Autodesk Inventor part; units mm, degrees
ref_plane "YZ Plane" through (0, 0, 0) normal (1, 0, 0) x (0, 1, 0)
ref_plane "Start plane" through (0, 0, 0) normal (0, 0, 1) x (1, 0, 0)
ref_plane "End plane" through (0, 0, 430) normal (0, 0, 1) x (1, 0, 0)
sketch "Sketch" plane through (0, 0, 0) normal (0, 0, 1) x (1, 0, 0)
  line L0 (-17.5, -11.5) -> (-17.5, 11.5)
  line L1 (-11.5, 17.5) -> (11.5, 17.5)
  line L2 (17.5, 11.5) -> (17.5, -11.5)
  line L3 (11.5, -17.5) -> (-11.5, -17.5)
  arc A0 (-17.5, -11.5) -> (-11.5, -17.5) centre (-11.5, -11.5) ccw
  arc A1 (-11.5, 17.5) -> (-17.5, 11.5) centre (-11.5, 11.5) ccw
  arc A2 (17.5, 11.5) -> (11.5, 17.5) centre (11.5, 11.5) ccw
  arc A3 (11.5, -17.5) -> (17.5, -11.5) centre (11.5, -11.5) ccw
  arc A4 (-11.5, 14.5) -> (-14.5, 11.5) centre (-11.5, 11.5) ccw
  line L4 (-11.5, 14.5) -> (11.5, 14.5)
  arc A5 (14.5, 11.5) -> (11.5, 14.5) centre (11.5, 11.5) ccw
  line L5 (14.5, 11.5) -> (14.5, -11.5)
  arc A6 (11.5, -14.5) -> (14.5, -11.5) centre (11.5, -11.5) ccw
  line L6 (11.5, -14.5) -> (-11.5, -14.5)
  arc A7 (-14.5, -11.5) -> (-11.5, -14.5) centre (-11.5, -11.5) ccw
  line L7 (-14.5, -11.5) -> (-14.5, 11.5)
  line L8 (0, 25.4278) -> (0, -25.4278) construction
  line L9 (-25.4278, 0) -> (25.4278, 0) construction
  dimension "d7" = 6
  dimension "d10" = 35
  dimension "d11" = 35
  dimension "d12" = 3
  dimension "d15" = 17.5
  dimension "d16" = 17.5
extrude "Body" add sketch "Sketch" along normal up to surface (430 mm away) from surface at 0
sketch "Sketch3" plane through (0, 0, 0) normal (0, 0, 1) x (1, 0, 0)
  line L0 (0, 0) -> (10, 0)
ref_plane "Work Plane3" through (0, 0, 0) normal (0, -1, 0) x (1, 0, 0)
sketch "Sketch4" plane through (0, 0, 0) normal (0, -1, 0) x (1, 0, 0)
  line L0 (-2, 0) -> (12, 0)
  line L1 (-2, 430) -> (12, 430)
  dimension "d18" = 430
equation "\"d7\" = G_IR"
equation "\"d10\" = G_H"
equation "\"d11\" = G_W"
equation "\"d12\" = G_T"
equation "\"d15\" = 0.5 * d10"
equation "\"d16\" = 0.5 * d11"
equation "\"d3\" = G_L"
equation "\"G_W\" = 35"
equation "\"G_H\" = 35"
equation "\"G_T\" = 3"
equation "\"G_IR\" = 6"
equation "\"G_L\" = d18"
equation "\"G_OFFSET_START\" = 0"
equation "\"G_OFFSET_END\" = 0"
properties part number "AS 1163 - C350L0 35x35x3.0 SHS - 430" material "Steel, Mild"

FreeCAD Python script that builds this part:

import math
import FreeCAD as App
import Part
import Sketcher
Q = App.Units.Quantity

doc = App.newDocument("Part")
body = doc.addObject("PartDesign::Body", "Body")

# Sketch on XY plane
sketch1 = body.newObject("Sketcher::SketchObject", "Sketch")
sketch1.AttachmentSupport = (doc.getObject("XY_Plane"), [""])
sketch1.MapMode = "FlatFace"
sketch1.addGeometry([
    Part.LineSegment(App.Vector(-17.5, 11.5, 0), App.Vector(-17.5, -11.5, 0)),  # 0
    Part.ArcOfCircle(Part.Circle(App.Vector(-11.5, -11.5, 0), App.Vector(0, 0, 1), 6), math.radians(180), math.radians(270)),  # 1
    Part.LineSegment(App.Vector(-11.5, -17.5, 0), App.Vector(11.5, -17.5, 0)),  # 2
    Part.ArcOfCircle(Part.Circle(App.Vector(11.5, -11.5, 0), App.Vector(0, 0, 1), 6), math.radians(-90), math.radians(0)),  # 3
    Part.LineSegment(App.Vector(17.5, -11.5, 0), App.Vector(17.5, 11.5, 0)),  # 4
    Part.ArcOfCircle(Part.Circle(App.Vector(11.5, 11.5, 0), App.Vector(0, 0, 1), 6), math.radians(0), math.radians(90)),  # 5
    Part.LineSegment(App.Vector(11.5, 17.5, 0), App.Vector(-11.5, 17.5, 0)),  # 6
    Part.ArcOfCircle(Part.Circle(App.Vector(-11.5, 11.5, 0), App.Vector(0, 0, 1), 6), math.radians(90), math.radians(180)),  # 7
    Part.ArcOfCircle(Part.Circle(App.Vector(-11.5, 11.5, 0), App.Vector(0, 0, 1), 3), math.radians(90), math.radians(180)),  # 8
    Part.LineSegment(App.Vector(-11.5, 14.5, 0), App.Vector(11.5, 14.5, 0)),  # 9
    Part.ArcOfCircle(Part.Circle(App.Vector(11.5, 11.5, 0), App.Vector(0, 0, 1), 3), math.radians(0), math.radians(90)),  # 10
    Part.LineSegment(App.Vector(14.5, 11.5, 0), App.Vector(14.5, -11.5, 0)),  # 11
    Part.ArcOfCircle(Part.Circle(App.Vector(11.5, -11.5, 0), App.Vector(0, 0, 1), 3), math.radians(-90), math.radians(0)),  # 12
    Part.LineSegment(App.Vector(11.5, -14.5, 0), App.Vector(-11.5, -14.5, 0)),  # 13
    Part.ArcOfCircle(Part.Circle(App.Vector(-11.5, -11.5, 0), App.Vector(0, 0, 1), 3), math.radians(180), math.radians(270)),  # 14
    Part.LineSegment(App.Vector(-14.5, -11.5, 0), App.Vector(-14.5, 11.5, 0)),  # 15
], False)
sketch1.addConstraint([
    Sketcher.Constraint("Tangent", 0, 2, 1, 1),
    Sketcher.Constraint("Tangent", 1, 2, 2, 1),
    Sketcher.Constraint("Tangent", 2, 2, 3, 1),
    Sketcher.Constraint("Tangent", 3, 2, 4, 1),
    Sketcher.Constraint("Tangent", 4, 2, 5, 1),
    Sketcher.Constraint("Tangent", 5, 2, 6, 1),
    Sketcher.Constraint("Tangent", 6, 2, 7, 1),
    Sketcher.Constraint("Tangent", 7, 2, 0, 1),
    Sketcher.Constraint("Tangent", 8, 1, 9, 1),
    Sketcher.Constraint("Tangent", 9, 2, 10, 2),
    Sketcher.Constraint("Tangent", 10, 1, 11, 1),
    Sketcher.Constraint("Tangent", 11, 2, 12, 2),
    Sketcher.Constraint("Tangent", 12, 1, 13, 1),
    Sketcher.Constraint("Tangent", 13, 2, 14, 2),
    Sketcher.Constraint("Tangent", 14, 1, 15, 1),
    Sketcher.Constraint("Tangent", 15, 2, 8, 2),
    Sketcher.Constraint("Vertical", 0),
    Sketcher.Constraint("Horizontal", 2),
    Sketcher.Constraint("Vertical", 4),
    Sketcher.Constraint("Horizontal", 6),
    Sketcher.Constraint("Horizontal", 9),
    Sketcher.Constraint("Vertical", 11),
    Sketcher.Constraint("Horizontal", 13),
    Sketcher.Constraint("Vertical", 15),
    Sketcher.Constraint("Coincident", 8, 3, 7, 3),
    Sketcher.Constraint("Coincident", 10, 3, 5, 3),
    Sketcher.Constraint("Coincident", 12, 3, 3, 3),
    Sketcher.Constraint("Equal", 1, 3),
    Sketcher.Constraint("Equal", 3, 5),
    Sketcher.Constraint("Equal", 5, 7),
    Sketcher.Constraint("Equal", 12, 14),
    Sketcher.Constraint("Symmetric", 1, 3, 5, 3, -1, 1),
    Sketcher.Constraint("Equal", 13, 0),
    Sketcher.Constraint("Radius", 1, Q("6 mm")),
    Sketcher.Constraint("Radius", 8, Q("3 mm")),
    Sketcher.Constraint("DistanceX", 0, 2, -1, 1, Q("17.5 mm")),
])
pad1 = body.newObject("PartDesign::Pad", "Pad")
pad1.Profile = sketch1
pad1.Length = 430

doc.recompute()
